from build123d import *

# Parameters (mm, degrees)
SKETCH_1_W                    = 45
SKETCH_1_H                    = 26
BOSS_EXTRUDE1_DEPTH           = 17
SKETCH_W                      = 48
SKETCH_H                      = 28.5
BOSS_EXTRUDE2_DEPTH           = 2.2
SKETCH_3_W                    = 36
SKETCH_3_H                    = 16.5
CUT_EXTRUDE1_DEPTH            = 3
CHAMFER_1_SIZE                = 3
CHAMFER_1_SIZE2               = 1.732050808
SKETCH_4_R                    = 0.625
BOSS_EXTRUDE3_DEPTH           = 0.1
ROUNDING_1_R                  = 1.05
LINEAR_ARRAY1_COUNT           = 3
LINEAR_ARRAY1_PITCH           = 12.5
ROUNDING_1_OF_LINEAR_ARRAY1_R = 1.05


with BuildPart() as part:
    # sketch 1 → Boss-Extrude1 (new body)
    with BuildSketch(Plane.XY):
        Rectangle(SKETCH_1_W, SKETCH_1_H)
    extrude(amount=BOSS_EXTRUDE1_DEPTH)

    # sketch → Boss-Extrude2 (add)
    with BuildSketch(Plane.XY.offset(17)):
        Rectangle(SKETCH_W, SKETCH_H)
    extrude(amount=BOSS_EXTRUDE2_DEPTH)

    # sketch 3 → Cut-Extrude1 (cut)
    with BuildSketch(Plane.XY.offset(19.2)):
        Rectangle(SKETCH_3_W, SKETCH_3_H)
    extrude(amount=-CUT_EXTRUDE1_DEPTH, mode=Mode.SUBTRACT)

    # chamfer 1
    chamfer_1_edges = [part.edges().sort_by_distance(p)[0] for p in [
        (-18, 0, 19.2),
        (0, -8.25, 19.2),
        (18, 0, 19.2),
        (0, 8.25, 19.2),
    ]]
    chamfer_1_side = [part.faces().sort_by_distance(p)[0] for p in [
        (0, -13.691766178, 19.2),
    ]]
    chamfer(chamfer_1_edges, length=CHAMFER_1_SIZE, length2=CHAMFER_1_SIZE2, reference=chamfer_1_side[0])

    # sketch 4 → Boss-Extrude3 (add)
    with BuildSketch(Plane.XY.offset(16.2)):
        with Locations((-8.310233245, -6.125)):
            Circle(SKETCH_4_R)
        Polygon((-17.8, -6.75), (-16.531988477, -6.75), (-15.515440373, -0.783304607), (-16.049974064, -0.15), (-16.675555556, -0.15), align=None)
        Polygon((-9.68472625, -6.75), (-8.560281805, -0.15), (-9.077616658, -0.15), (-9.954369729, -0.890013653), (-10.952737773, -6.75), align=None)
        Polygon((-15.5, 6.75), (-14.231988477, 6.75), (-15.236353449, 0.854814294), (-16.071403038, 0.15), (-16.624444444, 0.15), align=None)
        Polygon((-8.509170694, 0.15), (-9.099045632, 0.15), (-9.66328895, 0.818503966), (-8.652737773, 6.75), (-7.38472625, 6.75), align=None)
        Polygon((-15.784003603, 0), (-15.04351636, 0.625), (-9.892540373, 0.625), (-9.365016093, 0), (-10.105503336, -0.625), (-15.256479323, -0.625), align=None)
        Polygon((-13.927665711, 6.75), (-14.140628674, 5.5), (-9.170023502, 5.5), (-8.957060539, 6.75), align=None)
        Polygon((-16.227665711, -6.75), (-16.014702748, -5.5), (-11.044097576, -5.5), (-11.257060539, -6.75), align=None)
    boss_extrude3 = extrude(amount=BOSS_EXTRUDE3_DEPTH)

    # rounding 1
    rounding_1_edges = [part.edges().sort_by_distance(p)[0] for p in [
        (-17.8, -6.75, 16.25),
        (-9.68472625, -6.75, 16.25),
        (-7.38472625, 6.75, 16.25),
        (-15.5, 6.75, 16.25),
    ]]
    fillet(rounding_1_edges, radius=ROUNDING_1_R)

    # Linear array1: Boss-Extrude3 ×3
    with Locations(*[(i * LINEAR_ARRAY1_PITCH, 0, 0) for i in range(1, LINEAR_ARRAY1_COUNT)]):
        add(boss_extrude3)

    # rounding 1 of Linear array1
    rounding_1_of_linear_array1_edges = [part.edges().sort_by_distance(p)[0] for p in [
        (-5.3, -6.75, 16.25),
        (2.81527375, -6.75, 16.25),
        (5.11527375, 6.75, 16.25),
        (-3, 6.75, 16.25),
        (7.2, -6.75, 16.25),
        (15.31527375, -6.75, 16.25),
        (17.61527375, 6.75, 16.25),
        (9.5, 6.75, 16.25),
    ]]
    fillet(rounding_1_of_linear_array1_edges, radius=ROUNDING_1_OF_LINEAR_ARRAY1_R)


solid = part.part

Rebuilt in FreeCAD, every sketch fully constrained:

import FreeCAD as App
import Part
import Sketcher
from FreeCAD import Vector


def edges_at(feature, points):
    """Names of the edges that pass closest to the given points."""
    edges = feature.Shape.Edges
    near = lambda p: min(range(len(edges)), key=lambda i: edges[i].distToShape(Part.Vertex(*p))[0])
    return sorted({f"Edge{near(p) + 1}" for p in points})

doc = App.newDocument("Part")
body = doc.addObject("PartDesign::Body", "Body")

# Sketch on XY plane
sketch1 = doc.addObject("Sketcher::SketchObject", "Sketch")
body.addObject(sketch1)
sketch1.AttachmentSupport = (doc.XY_Plane, [""])
sketch1.MapMode = "FlatFace"
sketch1.addGeometry(Part.LineSegment(Vector(-22.5, 13, 0), Vector(-22.5, -13, 0)), False)
sketch1.addGeometry(Part.LineSegment(Vector(-22.5, -13, 0), Vector(22.5, -13, 0)), False)
sketch1.addGeometry(Part.LineSegment(Vector(22.5, -13, 0), Vector(22.5, 13, 0)), False)
sketch1.addGeometry(Part.LineSegment(Vector(22.5, 13, 0), Vector(-22.5, 13, 0)), False)
sketch1.addConstraint(Sketcher.Constraint("Coincident", 0, 2, 1, 1))
sketch1.addConstraint(Sketcher.Constraint("Coincident", 1, 2, 2, 1))
sketch1.addConstraint(Sketcher.Constraint("Coincident", 2, 2, 3, 1))
sketch1.addConstraint(Sketcher.Constraint("Coincident", 3, 2, 0, 1))
sketch1.addConstraint(Sketcher.Constraint("Vertical", 0))
sketch1.addConstraint(Sketcher.Constraint("Horizontal", 1))
sketch1.addConstraint(Sketcher.Constraint("Vertical", 2))
sketch1.addConstraint(Sketcher.Constraint("Horizontal", 3))
sketch1.addConstraint(Sketcher.Constraint("Symmetric", 0, 2, 2, 2, -1, 1))
sketch1.addConstraint(Sketcher.Constraint("DistanceX", 1, 1, 1, 2, 45.0))
sketch1.addConstraint(Sketcher.Constraint("DistanceY", 0, 2, 0, 1, 26.0))
pad1 = doc.addObject("PartDesign::Pad", "Pad")
body.addObject(pad1)
pad1.Profile = sketch1
pad1.Length = 17

# Sketch on XY plane
sketch2 = doc.addObject("Sketcher::SketchObject", "Sketch001")
body.addObject(sketch2)
sketch2.AttachmentSupport = (doc.XY_Plane, [""])
sketch2.MapMode = "FlatFace"
sketch2.AttachmentOffset = App.Placement(Vector(0, 0, 17), App.Rotation())
sketch2.addGeometry(Part.LineSegment(Vector(-24, 14.25, 0), Vector(-24, -14.25, 0)), False)
sketch2.addGeometry(Part.LineSegment(Vector(-24, -14.25, 0), Vector(24, -14.25, 0)), False)
sketch2.addGeometry(Part.LineSegment(Vector(24, -14.25, 0), Vector(24, 14.25, 0)), False)
sketch2.addGeometry(Part.LineSegment(Vector(24, 14.25, 0), Vector(-24, 14.25, 0)), False)
sketch2.addConstraint(Sketcher.Constraint("Coincident", 0, 2, 1, 1))
sketch2.addConstraint(Sketcher.Constraint("Coincident", 1, 2, 2, 1))
sketch2.addConstraint(Sketcher.Constraint("Coincident", 2, 2, 3, 1))
sketch2.addConstraint(Sketcher.Constraint("Coincident", 3, 2, 0, 1))
sketch2.addConstraint(Sketcher.Constraint("Vertical", 0))
sketch2.addConstraint(Sketcher.Constraint("Horizontal", 1))
sketch2.addConstraint(Sketcher.Constraint("Vertical", 2))
sketch2.addConstraint(Sketcher.Constraint("Horizontal", 3))
sketch2.addConstraint(Sketcher.Constraint("Symmetric", 0, 2, 2, 2, -1, 1))
sketch2.addConstraint(Sketcher.Constraint("DistanceX", 1, 1, 1, 2, 48.0))
sketch2.addConstraint(Sketcher.Constraint("DistanceY", 0, 2, 0, 1, 28.5))
pad2 = doc.addObject("PartDesign::Pad", "Pad001")
body.addObject(pad2)
pad2.Profile = sketch2
pad2.Length = 2.2

# Sketch on XY plane
sketch3 = doc.addObject("Sketcher::SketchObject", "Sketch002")
body.addObject(sketch3)
sketch3.AttachmentSupport = (doc.XY_Plane, [""])
sketch3.MapMode = "FlatFace"
sketch3.AttachmentOffset = App.Placement(Vector(0, 0, 19.2), App.Rotation())
sketch3.addGeometry(Part.LineSegment(Vector(-18, 8.25, 0), Vector(-18, -8.25, 0)), False)
sketch3.addGeometry(Part.LineSegment(Vector(-18, -8.25, 0), Vector(18, -8.25, 0)), False)
sketch3.addGeometry(Part.LineSegment(Vector(18, -8.25, 0), Vector(18, 8.25, 0)), False)
sketch3.addGeometry(Part.LineSegment(Vector(18, 8.25, 0), Vector(-18, 8.25, 0)), False)
sketch3.addConstraint(Sketcher.Constraint("Coincident", 0, 2, 1, 1))
sketch3.addConstraint(Sketcher.Constraint("Coincident", 1, 2, 2, 1))
sketch3.addConstraint(Sketcher.Constraint("Coincident", 2, 2, 3, 1))
sketch3.addConstraint(Sketcher.Constraint("Coincident", 3, 2, 0, 1))
sketch3.addConstraint(Sketcher.Constraint("Vertical", 0))
sketch3.addConstraint(Sketcher.Constraint("Horizontal", 1))
sketch3.addConstraint(Sketcher.Constraint("Vertical", 2))
sketch3.addConstraint(Sketcher.Constraint("Horizontal", 3))
sketch3.addConstraint(Sketcher.Constraint("Symmetric", 0, 2, 2, 2, -1, 1))
sketch3.addConstraint(Sketcher.Constraint("DistanceX", 1, 1, 1, 2, 36.0))
sketch3.addConstraint(Sketcher.Constraint("DistanceY", 0, 2, 0, 1, 16.5))
pocket1 = doc.addObject("PartDesign::Pocket", "Pocket")
body.addObject(pocket1)
pocket1.Profile = sketch3
pocket1.Length = 3
doc.recompute()

chamfer = doc.addObject("PartDesign::Chamfer", "Chamfer")
body.addObject(chamfer)
chamfer.Base = (pocket1, edges_at(pocket1, [
    (-18, 0, 19.2),
    (0, -8.25, 19.2),
    (18, 0, 19.2),
    (0, 8.25, 19.2),
]))
chamfer.ChamferType = "Two distances"
chamfer.Size = 3
chamfer.Size2 = 1.732051

# Sketch on XY plane
sketch4 = doc.addObject("Sketcher::SketchObject", "Sketch003")
body.addObject(sketch4)
sketch4.AttachmentSupport = (doc.XY_Plane, [""])
sketch4.MapMode = "FlatFace"
sketch4.AttachmentOffset = App.Placement(Vector(0, 0, 16.2), App.Rotation())
sketch4.addGeometry(Part.Circle(Vector(-8.310233, -6.125, 0), Vector(0, 0, 1), 0.625), False)
sketch4.addGeometry(Part.LineSegment(Vector(-17.8, -6.75, 0), Vector(-16.531988, -6.75, 0)), False)
sketch4.addGeometry(Part.LineSegment(Vector(-16.531988, -6.75, 0), Vector(-15.51544, -0.783305, 0)), False)
sketch4.addGeometry(Part.LineSegment(Vector(-15.51544, -0.783305, 0), Vector(-16.049974, -0.15, 0)), False)
sketch4.addGeometry(Part.LineSegment(Vector(-16.049974, -0.15, 0), Vector(-16.675556, -0.15, 0)), False)
sketch4.addGeometry(Part.LineSegment(Vector(-16.675556, -0.15, 0), Vector(-17.8, -6.75, 0)), False)
sketch4.addGeometry(Part.LineSegment(Vector(-9.684726, -6.75, 0), Vector(-8.560282, -0.15, 0)), False)
sketch4.addGeometry(Part.LineSegment(Vector(-8.560282, -0.15, 0), Vector(-9.077617, -0.15, 0)), False)
sketch4.addGeometry(Part.LineSegment(Vector(-9.077617, -0.15, 0), Vector(-9.95437, -0.890014, 0)), False)
sketch4.addGeometry(Part.LineSegment(Vector(-9.95437, -0.890014, 0), Vector(-10.952738, -6.75, 0)), False)
sketch4.addGeometry(Part.LineSegment(Vector(-10.952738, -6.75, 0), Vector(-9.684726, -6.75, 0)), False)
sketch4.addGeometry(Part.LineSegment(Vector(-14.231988, 6.75, 0), Vector(-15.5, 6.75, 0)), False)
sketch4.addGeometry(Part.LineSegment(Vector(-15.5, 6.75, 0), Vector(-16.624444, 0.15, 0)), False)
sketch4.addGeometry(Part.LineSegment(Vector(-16.624444, 0.15, 0), Vector(-16.071403, 0.15, 0)), False)
sketch4.addGeometry(Part.LineSegment(Vector(-16.071403, 0.15, 0), Vector(-15.236353, 0.854814, 0)), False)
sketch4.addGeometry(Part.LineSegment(Vector(-15.236353, 0.854814, 0), Vector(-14.231988, 6.75, 0)), False)
sketch4.addGeometry(Part.LineSegment(Vector(-9.099046, 0.15, 0), Vector(-8.509171, 0.15, 0)), False)
sketch4.addGeometry(Part.LineSegment(Vector(-8.509171, 0.15, 0), Vector(-7.384726, 6.75, 0)), False)
sketch4.addGeometry(Part.LineSegment(Vector(-7.384726, 6.75, 0), Vector(-8.652738, 6.75, 0)), False)
sketch4.addGeometry(Part.LineSegment(Vector(-8.652738, 6.75, 0), Vector(-9.663289, 0.818504, 0)), False)
sketch4.addGeometry(Part.LineSegment(Vector(-9.663289, 0.818504, 0), Vector(-9.099046, 0.15, 0)), False)
sketch4.addGeometry(Part.LineSegment(Vector(-15.043516, 0.625, 0), Vector(-15.784004, 0, 0)), False)
sketch4.addGeometry(Part.LineSegment(Vector(-15.784004, 0, 0), Vector(-15.256479, -0.625, 0)), False)
sketch4.addGeometry(Part.LineSegment(Vector(-15.256479, -0.625, 0), Vector(-10.105503, -0.625, 0)), False)
sketch4.addGeometry(Part.LineSegment(Vector(-10.105503, -0.625, 0), Vector(-9.365016, 0, 0)), False)
sketch4.addGeometry(Part.LineSegment(Vector(-9.365016, 0, 0), Vector(-9.89254, 0.625, 0)), False)
sketch4.addGeometry(Part.LineSegment(Vector(-9.89254, 0.625, 0), Vector(-15.043516, 0.625, 0)), False)
sketch4.addGeometry(Part.LineSegment(Vector(-13.927666, 6.75, 0), Vector(-14.140629, 5.5, 0)), False)
sketch4.addGeometry(Part.LineSegment(Vector(-14.140629, 5.5, 0), Vector(-9.170024, 5.5, 0)), False)
sketch4.addGeometry(Part.LineSegment(Vector(-9.170024, 5.5, 0), Vector(-8.957061, 6.75, 0)), False)
sketch4.addGeometry(Part.LineSegment(Vector(-8.957061, 6.75, 0), Vector(-13.927666, 6.75, 0)), False)
sketch4.addGeometry(Part.LineSegment(Vector(-16.014703, -5.5, 0), Vector(-16.227666, -6.75, 0)), False)
sketch4.addGeometry(Part.LineSegment(Vector(-16.227666, -6.75, 0), Vector(-11.257061, -6.75, 0)), False)
sketch4.addGeometry(Part.LineSegment(Vector(-11.257061, -6.75, 0), Vector(-11.044098, -5.5, 0)), False)
sketch4.addGeometry(Part.LineSegment(Vector(-11.044098, -5.5, 0), Vector(-16.014703, -5.5, 0)), False)
sketch4.addConstraint(Sketcher.Constraint("Coincident", 1, 2, 2, 1))
sketch4.addConstraint(Sketcher.Constraint("Coincident", 2, 2, 3, 1))
sketch4.addConstraint(Sketcher.Constraint("Coincident", 3, 2, 4, 1))
sketch4.addConstraint(Sketcher.Constraint("Coincident", 4, 2, 5, 1))
sketch4.addConstraint(Sketcher.Constraint("Coincident", 5, 2, 1, 1))
sketch4.addConstraint(Sketcher.Constraint("Coincident", 6, 2, 7, 1))
sketch4.addConstraint(Sketcher.Constraint("Coincident", 7, 2, 8, 1))
sketch4.addConstraint(Sketcher.Constraint("Coincident", 8, 2, 9, 1))
sketch4.addConstraint(Sketcher.Constraint("Coincident", 9, 2, 10, 1))
sketch4.addConstraint(Sketcher.Constraint("Coincident", 10, 2, 6, 1))
sketch4.addConstraint(Sketcher.Constraint("Coincident", 11, 2, 12, 1))
sketch4.addConstraint(Sketcher.Constraint("Coincident", 12, 2, 13, 1))
sketch4.addConstraint(Sketcher.Constraint("Coincident", 13, 2, 14, 1))
sketch4.addConstraint(Sketcher.Constraint("Coincident", 14, 2, 15, 1))
sketch4.addConstraint(Sketcher.Constraint("Coincident", 15, 2, 11, 1))
sketch4.addConstraint(Sketcher.Constraint("Coincident", 16, 2, 17, 1))
sketch4.addConstraint(Sketcher.Constraint("Coincident", 17, 2, 18, 1))
sketch4.addConstraint(Sketcher.Constraint("Coincident", 18, 2, 19, 1))
sketch4.addConstraint(Sketcher.Constraint("Coincident", 19, 2, 20, 1))
sketch4.addConstraint(Sketcher.Constraint("Coincident", 20, 2, 16, 1))
sketch4.addConstraint(Sketcher.Constraint("Coincident", 21, 2, 22, 1))
sketch4.addConstraint(Sketcher.Constraint("Coincident", 22, 2, 23, 1))
sketch4.addConstraint(Sketcher.Constraint("Coincident", 23, 2, 24, 1))
sketch4.addConstraint(Sketcher.Constraint("Coincident", 24, 2, 25, 1))
sketch4.addConstraint(Sketcher.Constraint("Coincident", 25, 2, 26, 1))
sketch4.addConstraint(Sketcher.Constraint("Coincident", 26, 2, 21, 1))
sketch4.addConstraint(Sketcher.Constraint("Coincident", 27, 2, 28, 1))
sketch4.addConstraint(Sketcher.Constraint("Coincident", 28, 2, 29, 1))
sketch4.addConstraint(Sketcher.Constraint("Coincident", 29, 2, 30, 1))
sketch4.addConstraint(Sketcher.Constraint("Coincident", 30, 2, 27, 1))
sketch4.addConstraint(Sketcher.Constraint("Coincident", 31, 2, 32, 1))
sketch4.addConstraint(Sketcher.Constraint("Coincident", 32, 2, 33, 1))
sketch4.addConstraint(Sketcher.Constraint("Coincident", 33, 2, 34, 1))
sketch4.addConstraint(Sketcher.Constraint("Coincident", 34, 2, 31, 1))
sketch4.addConstraint(Sketcher.Constraint("Horizontal", 1))
sketch4.addConstraint(Sketcher.Constraint("Horizontal", 4))
sketch4.addConstraint(Sketcher.Constraint("Horizontal", 7))
sketch4.addConstraint(Sketcher.Constraint("Horizontal", 10))
sketch4.addConstraint(Sketcher.Constraint("Horizontal", 11))
sketch4.addConstraint(Sketcher.Constraint("Horizontal", 13))
sketch4.addConstraint(Sketcher.Constraint("Horizontal", 16))
sketch4.addConstraint(Sketcher.Constraint("Horizontal", 18))
sketch4.addConstraint(Sketcher.Constraint("Horizontal", 23))
sketch4.addConstraint(Sketcher.Constraint("Horizontal", 26))
sketch4.addConstraint(Sketcher.Constraint("Horizontal", 28))
sketch4.addConstraint(Sketcher.Constraint("Horizontal", 30))
sketch4.addConstraint(Sketcher.Constraint("Horizontal", 32))
sketch4.addConstraint(Sketcher.Constraint("Horizontal", 34))
sketch4.addConstraint(Sketcher.Constraint("PointOnObject", 21, 2, -1))
sketch4.addConstraint(Sketcher.Constraint("PointOnObject", 24, 2, -1))
sketch4.addConstraint(Sketcher.Constraint("Parallel", 2, 5))
sketch4.addConstraint(Sketcher.Constraint("Parallel", 5, 6))
sketch4.addConstraint(Sketcher.Constraint("Perpendicular", 3, 8))
sketch4.addConstraint(Sketcher.Constraint("Parallel", 6, 9))
sketch4.addConstraint(Sketcher.Constraint("Parallel", 9, 12))
sketch4.addConstraint(Sketcher.Constraint("Parallel", 8, 14))
sketch4.addConstraint(Sketcher.Constraint("Parallel", 12, 15))
sketch4.addConstraint(Sketcher.Constraint("Parallel", 15, 17))
sketch4.addConstraint(Sketcher.Constraint("Parallel", 17, 19))
sketch4.addConstraint(Sketcher.Constraint("Perpendicular", 14, 20))
sketch4.addConstraint(Sketcher.Constraint("Perpendicular", 20, 21))
sketch4.addConstraint(Sketcher.Constraint("Perpendicular", 21, 22))
sketch4.addConstraint(Sketcher.Constraint("Perpendicular", 22, 24))
sketch4.addConstraint(Sketcher.Constraint("Perpendicular", 24, 25))
sketch4.addConstraint(Sketcher.Constraint("Parallel", 19, 27))
sketch4.addConstraint(Sketcher.Constraint("Parallel", 27, 29))
sketch4.addConstraint(Sketcher.Constraint("Parallel", 29, 31))
sketch4.addConstraint(Sketcher.Constraint("Parallel", 31, 33))
sketch4.addConstraint(Sketcher.Constraint("Horizontal", 4, 2, 6, 2))
sketch4.addConstraint(Sketcher.Constraint("Horizontal", 5, 2, 9, 2))
sketch4.addConstraint(Sketcher.Constraint("Horizontal", 13, 2, 16, 2))
sketch4.addConstraint(Sketcher.Constraint("Horizontal", 15, 2, 17, 2))
sketch4.addConstraint(Sketcher.Constraint("Horizontal", 18, 2, 29, 2))
sketch4.addConstraint(Sketcher.Constraint("Horizontal", 10, 2, 31, 2))
sketch4.addConstraint(Sketcher.Constraint("Equal", 1, 10))
sketch4.addConstraint(Sketcher.Constraint("Equal", 10, 11))
sketch4.addConstraint(Sketcher.Constraint("Equal", 11, 18))
sketch4.addConstraint(Sketcher.Constraint("Equal", 23, 26))
sketch4.addConstraint(Sketcher.Constraint("Equal", 30, 32))
sketch4.addConstraint(Sketcher.Constraint("Equal", 6, 12))
sketch4.addConstraint(Sketcher.Constraint("Equal", 29, 31))
sketch4.addConstraint(Sketcher.Constraint("Diameter", 0, 1.25))
sketch4.addConstraint(Sketcher.Constraint("DistanceX", 5, 2, -1, 1, 17.8))
sketch4.addConstraint(Sketcher.Constraint("DistanceX", 11, 2, -1, 1, 15.5))
sketch4.addConstraint(Sketcher.Constraint("DistanceY", -1, 1, 27, 2, 5.5))
sketch4.addConstraint(Sketcher.Constraint("DistanceY", 33, 2, -1, 1, 5.5))
sketch4.addConstraint(Sketcher.Constraint("DistanceY", 1, 2, 3, 2, 6.6))
sketch4.addConstraint(Sketcher.Constraint("DistanceY", 3, 2, 11, 2, 6.9))
sketch4.addConstraint(Sketcher.Constraint("DistanceY", 23, 2, 25, 2, 1.25))
sketch4.addConstraint(Sketcher.Constraint("DistanceY", 0, 3, -1, 1, 6.125))
sketch4.addConstraint(Sketcher.Constraint("Distance", 5, 6.695101))
sketch4.addConstraint(Sketcher.Constraint("DistanceX", 1, 1, 1, 2, 1.268012))
sketch4.addConstraint(Sketcher.Constraint("DistanceX", 4, 2, 4, 1, 0.625581))
sketch4.addConstraint(Sketcher.Constraint("DistanceX", 13, 1, 13, 2, 0.553041))
sketch4.addConstraint(Sketcher.Constraint("DistanceX", 8, 2, 16, 2, 1.445199))
sketch4.addConstraint(Sketcher.Constraint("DistanceX", 13, 2, 21, 2, 0.287399))
sketch4.addConstraint(Sketcher.Constraint("DistanceX", 24, 2, 7, 2, 0.287399))
sketch4.addConstraint(Sketcher.Constraint("Distance", 2, 6.052671))
sketch4.addConstraint(Sketcher.Constraint("Distance", 8, 1.147308))
sketch4.addConstraint(Sketcher.Constraint("DistanceX", 16, 1, 16, 2, 0.589875))
sketch4.addConstraint(Sketcher.Constraint("DistanceX", 23, 1, 23, 2, 5.150976))
sketch4.addConstraint(Sketcher.Constraint("DistanceX", 28, 1, 28, 2, 4.970605))
sketch4.addConstraint(Sketcher.Constraint("DistanceX", 27, 2, -1, 1, 14.140629))
sketch4.addConstraint(Sketcher.Constraint("DistanceX", 32, 2, -1, 1, 11.257061))
sketch4.addConstraint(Sketcher.Constraint("DistanceX", 3, 2, 0, 3, 7.739741))
pad3 = doc.addObject("PartDesign::Pad", "Pad002")
body.addObject(pad3)
pad3.Profile = sketch4
pad3.Length = 0.1
doc.recompute()

fillet = doc.addObject("PartDesign::Fillet", "Fillet")
body.addObject(fillet)
fillet.Base = (pad3, edges_at(pad3, [
    (-17.8, -6.75, 16.25),
    (-9.685, -6.75, 16.25),
    (-7.385, 6.75, 16.25),
    (-15.5, 6.75, 16.25),
]))
fillet.Radius = 1.05
doc.recompute()

linearpattern = doc.addObject("PartDesign::LinearPattern", "LinearPattern")
body.addObject(linearpattern)
linearpattern.Originals = [pad3]
linearpattern.Direction = (doc.X_Axis, [""])
linearpattern.Mode = "offset"
linearpattern.Offset = 12.5
linearpattern.Occurrences = 3
body.Tip = linearpattern
doc.recompute()

fillet2 = doc.addObject("PartDesign::Fillet", "Fillet001")
body.addObject(fillet2)
fillet2.Base = (linearpattern, edges_at(linearpattern, [
    (-5.3, -6.75, 16.25),
    (2.815, -6.75, 16.25),
    (5.115, 6.75, 16.25),
    (-3, 6.75, 16.25),
    (7.2, -6.75, 16.25),
    (15.315, -6.75, 16.25),
    (17.615, 6.75, 16.25),
    (9.5, 6.75, 16.25),
]))
fillet2.Radius = 1.05

doc.recompute()
